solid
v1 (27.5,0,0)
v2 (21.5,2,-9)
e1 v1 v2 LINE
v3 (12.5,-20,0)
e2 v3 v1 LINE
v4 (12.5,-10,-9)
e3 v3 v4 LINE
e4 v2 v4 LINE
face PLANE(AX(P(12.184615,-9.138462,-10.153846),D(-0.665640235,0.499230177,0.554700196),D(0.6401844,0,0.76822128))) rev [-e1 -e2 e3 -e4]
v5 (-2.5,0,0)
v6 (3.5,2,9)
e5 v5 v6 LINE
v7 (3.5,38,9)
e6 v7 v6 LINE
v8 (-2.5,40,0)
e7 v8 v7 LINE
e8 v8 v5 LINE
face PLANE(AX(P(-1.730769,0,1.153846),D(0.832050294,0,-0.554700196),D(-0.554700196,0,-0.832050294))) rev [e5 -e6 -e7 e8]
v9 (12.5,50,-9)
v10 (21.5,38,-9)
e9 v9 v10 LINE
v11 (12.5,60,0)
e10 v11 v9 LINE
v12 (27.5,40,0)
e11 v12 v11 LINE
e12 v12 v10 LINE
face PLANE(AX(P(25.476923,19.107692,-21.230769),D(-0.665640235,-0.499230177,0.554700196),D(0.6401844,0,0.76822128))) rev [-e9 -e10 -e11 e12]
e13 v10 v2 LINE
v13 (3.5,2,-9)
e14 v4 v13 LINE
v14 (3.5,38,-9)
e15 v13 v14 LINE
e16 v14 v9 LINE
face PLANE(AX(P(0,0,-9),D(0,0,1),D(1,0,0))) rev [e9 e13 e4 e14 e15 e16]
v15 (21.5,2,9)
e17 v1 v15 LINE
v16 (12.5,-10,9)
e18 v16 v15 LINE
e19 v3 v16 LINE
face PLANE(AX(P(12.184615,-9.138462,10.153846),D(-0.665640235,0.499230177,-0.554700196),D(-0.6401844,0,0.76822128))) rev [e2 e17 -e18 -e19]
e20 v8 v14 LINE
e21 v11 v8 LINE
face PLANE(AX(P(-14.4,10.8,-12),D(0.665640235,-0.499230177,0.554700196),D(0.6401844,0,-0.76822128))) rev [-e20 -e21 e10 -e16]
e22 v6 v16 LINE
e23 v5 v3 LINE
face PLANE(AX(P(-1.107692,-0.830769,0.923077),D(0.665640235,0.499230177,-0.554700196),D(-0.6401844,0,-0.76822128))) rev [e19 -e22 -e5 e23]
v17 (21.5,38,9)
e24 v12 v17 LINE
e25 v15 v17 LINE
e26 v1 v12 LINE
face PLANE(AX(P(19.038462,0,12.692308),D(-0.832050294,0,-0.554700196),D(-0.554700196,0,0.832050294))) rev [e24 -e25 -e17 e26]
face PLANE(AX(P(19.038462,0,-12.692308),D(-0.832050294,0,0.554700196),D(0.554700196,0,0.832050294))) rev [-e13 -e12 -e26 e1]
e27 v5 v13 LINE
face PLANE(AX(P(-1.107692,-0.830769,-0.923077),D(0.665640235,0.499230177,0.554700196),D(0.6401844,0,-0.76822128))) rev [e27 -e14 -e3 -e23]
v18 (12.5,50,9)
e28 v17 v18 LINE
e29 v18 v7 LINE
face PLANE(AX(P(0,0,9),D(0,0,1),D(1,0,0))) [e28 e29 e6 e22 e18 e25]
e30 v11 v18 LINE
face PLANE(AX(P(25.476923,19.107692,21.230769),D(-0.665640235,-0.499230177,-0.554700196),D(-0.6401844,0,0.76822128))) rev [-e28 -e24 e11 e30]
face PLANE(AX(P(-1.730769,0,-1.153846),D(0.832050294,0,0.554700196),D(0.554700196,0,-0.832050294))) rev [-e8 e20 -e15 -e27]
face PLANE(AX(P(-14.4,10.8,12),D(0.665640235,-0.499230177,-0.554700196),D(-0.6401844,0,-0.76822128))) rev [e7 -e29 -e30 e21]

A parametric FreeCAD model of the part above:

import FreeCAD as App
import Part
import Sketcher


def add_polygon(sketch, points):
    """Adds a closed chain of lines whose ends are joined by coincident constraints."""
    first, n = sketch.GeometryCount, len(points)
    for a, b in zip(points, points[1:] + points[:1]):
        sketch.addGeometry(Part.LineSegment(App.Vector(*a, 0), App.Vector(*b, 0)), False)
    for i in range(n):
        sketch.addConstraint(Sketcher.Constraint("Coincident", first + i, 2, first + (i + 1) % n, 1))

doc = App.newDocument("Part")
params = doc.addObject("Spreadsheet::Sheet", "Params")
for row, (alias, value) in enumerate([
    ("sketch1_height", "40 mm"),
    ("sketch1_length", "25 mm"),
    ("sketch2_height", "36 mm"),
    ("sketch2_length", "15 mm"),
    ("sketch3_height", "40 mm"),
    ("sketch3_length", "25 mm"),
    ("sketch4_height", "36 mm"),
    ("sketch4_length", "15 mm"),
], start=1):
    params.set(f"A{row}", alias)
    params.set(f"B{row}", "=" + value)
    params.setAlias(f"B{row}", alias)

body = doc.addObject("PartDesign::Body", "Body")

# Sketch on XY plane
sketch1 = body.newObject("Sketcher::SketchObject", "Sketch")
sketch1.AttachmentSupport = (doc.getObject("XY_Plane"), [""])
sketch1.MapMode = "FlatFace"
add_polygon(sketch1, [(28, 0), (28, 40), (12, 60), (-2, 40), (-2, 0), (12, -20)])  # lines 0-5
sketch1.addConstraint(Sketcher.Constraint("Vertical", 0))
sketch1.addConstraint(Sketcher.Constraint("Vertical", 3))
sketch1.addConstraint(Sketcher.Constraint("PointOnObject", 3, 2, -1))
sketch1.addConstraint(Sketcher.Constraint("PointOnObject", 5, 2, -1))
sketch1.addConstraint(Sketcher.Constraint("Parallel", 1, 4))
sketch1.addConstraint(Sketcher.Constraint("Parallel", 2, 5))
sketch1.addConstraint(Sketcher.Constraint("Horizontal", 0, 2, 2, 2))
sketch1.addConstraint(Sketcher.Constraint("Vertical", 1, 2, 4, 2))
sketch1.addConstraint(Sketcher.Constraint("DistanceY", 0, 1, 0, 2, 40.0))
sketch1.addConstraint(Sketcher.Constraint("Distance", 1, 25.0))
sketch1.addConstraint(Sketcher.Constraint("DistanceY", -1, 1, 1, 2, 60.0))
sketch1.addConstraint(Sketcher.Constraint("DistanceX", -1, 1, 0, 2, 27.5))
sketch1.setExpression("Constraints[14]", "Params.sketch1_height")
sketch1.setExpression("Constraints[15]", "Params.sketch1_length")

# Sketch on XY plane
sketch2 = body.newObject("Sketcher::SketchObject", "Sketch001")
sketch2.AttachmentSupport = (doc.getObject("XY_Plane"), [""])
sketch2.MapMode = "FlatFace"
sketch2.AttachmentOffset = App.Placement(App.Vector(0, 0, 9), App.Rotation())
add_polygon(sketch2, [(4, 38), (4, 2), (12, -10), (22, 2), (22, 38), (12, 50)])  # lines 0-5
sketch2.addConstraint(Sketcher.Constraint("Vertical", 0))
sketch2.addConstraint(Sketcher.Constraint("Vertical", 3))
sketch2.addConstraint(Sketcher.Constraint("Parallel", 1, 4))
sketch2.addConstraint(Sketcher.Constraint("Parallel", 2, 5))
sketch2.addConstraint(Sketcher.Constraint("Horizontal", 0, 2, 2, 2))
sketch2.addConstraint(Sketcher.Constraint("Horizontal", 3, 2, 5, 2))
sketch2.addConstraint(Sketcher.Constraint("Vertical", 1, 2, 4, 2))
sketch2.addConstraint(Sketcher.Constraint("DistanceY", 0, 2, 0, 1, 36.0))
sketch2.addConstraint(Sketcher.Constraint("Distance", 1, 15.0))
sketch2.addConstraint(Sketcher.Constraint("DistanceY", -1, 1, 0, 2, 2.0))
sketch2.addConstraint(Sketcher.Constraint("DistanceY", 1, 2, -1, 1, 10.0))
sketch2.addConstraint(Sketcher.Constraint("DistanceX", -1, 1, 0, 2, 3.5))
sketch2.setExpression("Constraints[13]", "Params.sketch2_height")
sketch2.setExpression("Constraints[14]", "Params.sketch2_length")

additiveloft = body.newObject("PartDesign::AdditiveLoft", "AdditiveLoft")
additiveloft.Profile = sketch1
additiveloft.Sections = [sketch2]

# Sketch on XY plane
sketch3 = body.newObject("Sketcher::SketchObject", "Sketch002")
sketch3.AttachmentSupport = (doc.getObject("XY_Plane"), [""])
sketch3.MapMode = "FlatFace"
add_polygon(sketch3, [(28, 0), (28, 40), (12, 60), (-2, 40), (-2, 0), (12, -20)])  # lines 0-5
sketch3.addConstraint(Sketcher.Constraint("Vertical", 0))
sketch3.addConstraint(Sketcher.Constraint("Vertical", 3))
sketch3.addConstraint(Sketcher.Constraint("PointOnObject", 3, 2, -1))
sketch3.addConstraint(Sketcher.Constraint("PointOnObject", 5, 2, -1))
sketch3.addConstraint(Sketcher.Constraint("Parallel", 1, 4))
sketch3.addConstraint(Sketcher.Constraint("Parallel", 2, 5))
sketch3.addConstraint(Sketcher.Constraint("Horizontal", 0, 2, 2, 2))
sketch3.addConstraint(Sketcher.Constraint("Vertical", 1, 2, 4, 2))
sketch3.addConstraint(Sketcher.Constraint("DistanceY", 0, 1, 0, 2, 40.0))
sketch3.addConstraint(Sketcher.Constraint("Distance", 1, 25.0))
sketch3.addConstraint(Sketcher.Constraint("DistanceY", -1, 1, 1, 2, 60.0))
sketch3.addConstraint(Sketcher.Constraint("DistanceX", -1, 1, 0, 2, 27.5))
sketch3.setExpression("Constraints[14]", "Params.sketch3_height")
sketch3.setExpression("Constraints[15]", "Params.sketch3_length")

# Sketch on XY plane
sketch4 = body.newObject("Sketcher::SketchObject", "Sketch003")
sketch4.AttachmentSupport = (doc.getObject("XY_Plane"), [""])
sketch4.MapMode = "FlatFace"
sketch4.AttachmentOffset = App.Placement(App.Vector(0, 0, -9), App.Rotation())
add_polygon(sketch4, [(12, 50), (22, 38), (22, 2), (12, -10), (4, 2), (4, 38)])  # lines 0-5
sketch4.addConstraint(Sketcher.Constraint("Vertical", 1))
sketch4.addConstraint(Sketcher.Constraint("Vertical", 4))
sketch4.addConstraint(Sketcher.Constraint("Parallel", 0, 3))
sketch4.addConstraint(Sketcher.Constraint("Parallel", 2, 5))
sketch4.addConstraint(Sketcher.Constraint("Horizontal", 1, 2, 3, 2))
sketch4.addConstraint(Sketcher.Constraint("Horizontal", 0, 2, 4, 2))
sketch4.addConstraint(Sketcher.Constraint("Vertical", 2, 2, 5, 2))
sketch4.addConstraint(Sketcher.Constraint("DistanceY", 1, 2, 1, 1, 36.0))
sketch4.addConstraint(Sketcher.Constraint("Distance", 0, 15.0))
sketch4.addConstraint(Sketcher.Constraint("DistanceY", -1, 1, 0, 2, 38.0))
sketch4.addConstraint(Sketcher.Constraint("DistanceY", 2, 2, -1, 1, 10.0))
sketch4.addConstraint(Sketcher.Constraint("DistanceX", -1, 1, 0, 2, 21.5))
sketch4.setExpression("Constraints[13]", "Params.sketch4_height")
sketch4.setExpression("Constraints[14]", "Params.sketch4_length")

additiveloft2 = body.newObject("PartDesign::AdditiveLoft", "AdditiveLoft001")
additiveloft2.Profile = sketch3
additiveloft2.Sections = [sketch4]

doc.recompute()
